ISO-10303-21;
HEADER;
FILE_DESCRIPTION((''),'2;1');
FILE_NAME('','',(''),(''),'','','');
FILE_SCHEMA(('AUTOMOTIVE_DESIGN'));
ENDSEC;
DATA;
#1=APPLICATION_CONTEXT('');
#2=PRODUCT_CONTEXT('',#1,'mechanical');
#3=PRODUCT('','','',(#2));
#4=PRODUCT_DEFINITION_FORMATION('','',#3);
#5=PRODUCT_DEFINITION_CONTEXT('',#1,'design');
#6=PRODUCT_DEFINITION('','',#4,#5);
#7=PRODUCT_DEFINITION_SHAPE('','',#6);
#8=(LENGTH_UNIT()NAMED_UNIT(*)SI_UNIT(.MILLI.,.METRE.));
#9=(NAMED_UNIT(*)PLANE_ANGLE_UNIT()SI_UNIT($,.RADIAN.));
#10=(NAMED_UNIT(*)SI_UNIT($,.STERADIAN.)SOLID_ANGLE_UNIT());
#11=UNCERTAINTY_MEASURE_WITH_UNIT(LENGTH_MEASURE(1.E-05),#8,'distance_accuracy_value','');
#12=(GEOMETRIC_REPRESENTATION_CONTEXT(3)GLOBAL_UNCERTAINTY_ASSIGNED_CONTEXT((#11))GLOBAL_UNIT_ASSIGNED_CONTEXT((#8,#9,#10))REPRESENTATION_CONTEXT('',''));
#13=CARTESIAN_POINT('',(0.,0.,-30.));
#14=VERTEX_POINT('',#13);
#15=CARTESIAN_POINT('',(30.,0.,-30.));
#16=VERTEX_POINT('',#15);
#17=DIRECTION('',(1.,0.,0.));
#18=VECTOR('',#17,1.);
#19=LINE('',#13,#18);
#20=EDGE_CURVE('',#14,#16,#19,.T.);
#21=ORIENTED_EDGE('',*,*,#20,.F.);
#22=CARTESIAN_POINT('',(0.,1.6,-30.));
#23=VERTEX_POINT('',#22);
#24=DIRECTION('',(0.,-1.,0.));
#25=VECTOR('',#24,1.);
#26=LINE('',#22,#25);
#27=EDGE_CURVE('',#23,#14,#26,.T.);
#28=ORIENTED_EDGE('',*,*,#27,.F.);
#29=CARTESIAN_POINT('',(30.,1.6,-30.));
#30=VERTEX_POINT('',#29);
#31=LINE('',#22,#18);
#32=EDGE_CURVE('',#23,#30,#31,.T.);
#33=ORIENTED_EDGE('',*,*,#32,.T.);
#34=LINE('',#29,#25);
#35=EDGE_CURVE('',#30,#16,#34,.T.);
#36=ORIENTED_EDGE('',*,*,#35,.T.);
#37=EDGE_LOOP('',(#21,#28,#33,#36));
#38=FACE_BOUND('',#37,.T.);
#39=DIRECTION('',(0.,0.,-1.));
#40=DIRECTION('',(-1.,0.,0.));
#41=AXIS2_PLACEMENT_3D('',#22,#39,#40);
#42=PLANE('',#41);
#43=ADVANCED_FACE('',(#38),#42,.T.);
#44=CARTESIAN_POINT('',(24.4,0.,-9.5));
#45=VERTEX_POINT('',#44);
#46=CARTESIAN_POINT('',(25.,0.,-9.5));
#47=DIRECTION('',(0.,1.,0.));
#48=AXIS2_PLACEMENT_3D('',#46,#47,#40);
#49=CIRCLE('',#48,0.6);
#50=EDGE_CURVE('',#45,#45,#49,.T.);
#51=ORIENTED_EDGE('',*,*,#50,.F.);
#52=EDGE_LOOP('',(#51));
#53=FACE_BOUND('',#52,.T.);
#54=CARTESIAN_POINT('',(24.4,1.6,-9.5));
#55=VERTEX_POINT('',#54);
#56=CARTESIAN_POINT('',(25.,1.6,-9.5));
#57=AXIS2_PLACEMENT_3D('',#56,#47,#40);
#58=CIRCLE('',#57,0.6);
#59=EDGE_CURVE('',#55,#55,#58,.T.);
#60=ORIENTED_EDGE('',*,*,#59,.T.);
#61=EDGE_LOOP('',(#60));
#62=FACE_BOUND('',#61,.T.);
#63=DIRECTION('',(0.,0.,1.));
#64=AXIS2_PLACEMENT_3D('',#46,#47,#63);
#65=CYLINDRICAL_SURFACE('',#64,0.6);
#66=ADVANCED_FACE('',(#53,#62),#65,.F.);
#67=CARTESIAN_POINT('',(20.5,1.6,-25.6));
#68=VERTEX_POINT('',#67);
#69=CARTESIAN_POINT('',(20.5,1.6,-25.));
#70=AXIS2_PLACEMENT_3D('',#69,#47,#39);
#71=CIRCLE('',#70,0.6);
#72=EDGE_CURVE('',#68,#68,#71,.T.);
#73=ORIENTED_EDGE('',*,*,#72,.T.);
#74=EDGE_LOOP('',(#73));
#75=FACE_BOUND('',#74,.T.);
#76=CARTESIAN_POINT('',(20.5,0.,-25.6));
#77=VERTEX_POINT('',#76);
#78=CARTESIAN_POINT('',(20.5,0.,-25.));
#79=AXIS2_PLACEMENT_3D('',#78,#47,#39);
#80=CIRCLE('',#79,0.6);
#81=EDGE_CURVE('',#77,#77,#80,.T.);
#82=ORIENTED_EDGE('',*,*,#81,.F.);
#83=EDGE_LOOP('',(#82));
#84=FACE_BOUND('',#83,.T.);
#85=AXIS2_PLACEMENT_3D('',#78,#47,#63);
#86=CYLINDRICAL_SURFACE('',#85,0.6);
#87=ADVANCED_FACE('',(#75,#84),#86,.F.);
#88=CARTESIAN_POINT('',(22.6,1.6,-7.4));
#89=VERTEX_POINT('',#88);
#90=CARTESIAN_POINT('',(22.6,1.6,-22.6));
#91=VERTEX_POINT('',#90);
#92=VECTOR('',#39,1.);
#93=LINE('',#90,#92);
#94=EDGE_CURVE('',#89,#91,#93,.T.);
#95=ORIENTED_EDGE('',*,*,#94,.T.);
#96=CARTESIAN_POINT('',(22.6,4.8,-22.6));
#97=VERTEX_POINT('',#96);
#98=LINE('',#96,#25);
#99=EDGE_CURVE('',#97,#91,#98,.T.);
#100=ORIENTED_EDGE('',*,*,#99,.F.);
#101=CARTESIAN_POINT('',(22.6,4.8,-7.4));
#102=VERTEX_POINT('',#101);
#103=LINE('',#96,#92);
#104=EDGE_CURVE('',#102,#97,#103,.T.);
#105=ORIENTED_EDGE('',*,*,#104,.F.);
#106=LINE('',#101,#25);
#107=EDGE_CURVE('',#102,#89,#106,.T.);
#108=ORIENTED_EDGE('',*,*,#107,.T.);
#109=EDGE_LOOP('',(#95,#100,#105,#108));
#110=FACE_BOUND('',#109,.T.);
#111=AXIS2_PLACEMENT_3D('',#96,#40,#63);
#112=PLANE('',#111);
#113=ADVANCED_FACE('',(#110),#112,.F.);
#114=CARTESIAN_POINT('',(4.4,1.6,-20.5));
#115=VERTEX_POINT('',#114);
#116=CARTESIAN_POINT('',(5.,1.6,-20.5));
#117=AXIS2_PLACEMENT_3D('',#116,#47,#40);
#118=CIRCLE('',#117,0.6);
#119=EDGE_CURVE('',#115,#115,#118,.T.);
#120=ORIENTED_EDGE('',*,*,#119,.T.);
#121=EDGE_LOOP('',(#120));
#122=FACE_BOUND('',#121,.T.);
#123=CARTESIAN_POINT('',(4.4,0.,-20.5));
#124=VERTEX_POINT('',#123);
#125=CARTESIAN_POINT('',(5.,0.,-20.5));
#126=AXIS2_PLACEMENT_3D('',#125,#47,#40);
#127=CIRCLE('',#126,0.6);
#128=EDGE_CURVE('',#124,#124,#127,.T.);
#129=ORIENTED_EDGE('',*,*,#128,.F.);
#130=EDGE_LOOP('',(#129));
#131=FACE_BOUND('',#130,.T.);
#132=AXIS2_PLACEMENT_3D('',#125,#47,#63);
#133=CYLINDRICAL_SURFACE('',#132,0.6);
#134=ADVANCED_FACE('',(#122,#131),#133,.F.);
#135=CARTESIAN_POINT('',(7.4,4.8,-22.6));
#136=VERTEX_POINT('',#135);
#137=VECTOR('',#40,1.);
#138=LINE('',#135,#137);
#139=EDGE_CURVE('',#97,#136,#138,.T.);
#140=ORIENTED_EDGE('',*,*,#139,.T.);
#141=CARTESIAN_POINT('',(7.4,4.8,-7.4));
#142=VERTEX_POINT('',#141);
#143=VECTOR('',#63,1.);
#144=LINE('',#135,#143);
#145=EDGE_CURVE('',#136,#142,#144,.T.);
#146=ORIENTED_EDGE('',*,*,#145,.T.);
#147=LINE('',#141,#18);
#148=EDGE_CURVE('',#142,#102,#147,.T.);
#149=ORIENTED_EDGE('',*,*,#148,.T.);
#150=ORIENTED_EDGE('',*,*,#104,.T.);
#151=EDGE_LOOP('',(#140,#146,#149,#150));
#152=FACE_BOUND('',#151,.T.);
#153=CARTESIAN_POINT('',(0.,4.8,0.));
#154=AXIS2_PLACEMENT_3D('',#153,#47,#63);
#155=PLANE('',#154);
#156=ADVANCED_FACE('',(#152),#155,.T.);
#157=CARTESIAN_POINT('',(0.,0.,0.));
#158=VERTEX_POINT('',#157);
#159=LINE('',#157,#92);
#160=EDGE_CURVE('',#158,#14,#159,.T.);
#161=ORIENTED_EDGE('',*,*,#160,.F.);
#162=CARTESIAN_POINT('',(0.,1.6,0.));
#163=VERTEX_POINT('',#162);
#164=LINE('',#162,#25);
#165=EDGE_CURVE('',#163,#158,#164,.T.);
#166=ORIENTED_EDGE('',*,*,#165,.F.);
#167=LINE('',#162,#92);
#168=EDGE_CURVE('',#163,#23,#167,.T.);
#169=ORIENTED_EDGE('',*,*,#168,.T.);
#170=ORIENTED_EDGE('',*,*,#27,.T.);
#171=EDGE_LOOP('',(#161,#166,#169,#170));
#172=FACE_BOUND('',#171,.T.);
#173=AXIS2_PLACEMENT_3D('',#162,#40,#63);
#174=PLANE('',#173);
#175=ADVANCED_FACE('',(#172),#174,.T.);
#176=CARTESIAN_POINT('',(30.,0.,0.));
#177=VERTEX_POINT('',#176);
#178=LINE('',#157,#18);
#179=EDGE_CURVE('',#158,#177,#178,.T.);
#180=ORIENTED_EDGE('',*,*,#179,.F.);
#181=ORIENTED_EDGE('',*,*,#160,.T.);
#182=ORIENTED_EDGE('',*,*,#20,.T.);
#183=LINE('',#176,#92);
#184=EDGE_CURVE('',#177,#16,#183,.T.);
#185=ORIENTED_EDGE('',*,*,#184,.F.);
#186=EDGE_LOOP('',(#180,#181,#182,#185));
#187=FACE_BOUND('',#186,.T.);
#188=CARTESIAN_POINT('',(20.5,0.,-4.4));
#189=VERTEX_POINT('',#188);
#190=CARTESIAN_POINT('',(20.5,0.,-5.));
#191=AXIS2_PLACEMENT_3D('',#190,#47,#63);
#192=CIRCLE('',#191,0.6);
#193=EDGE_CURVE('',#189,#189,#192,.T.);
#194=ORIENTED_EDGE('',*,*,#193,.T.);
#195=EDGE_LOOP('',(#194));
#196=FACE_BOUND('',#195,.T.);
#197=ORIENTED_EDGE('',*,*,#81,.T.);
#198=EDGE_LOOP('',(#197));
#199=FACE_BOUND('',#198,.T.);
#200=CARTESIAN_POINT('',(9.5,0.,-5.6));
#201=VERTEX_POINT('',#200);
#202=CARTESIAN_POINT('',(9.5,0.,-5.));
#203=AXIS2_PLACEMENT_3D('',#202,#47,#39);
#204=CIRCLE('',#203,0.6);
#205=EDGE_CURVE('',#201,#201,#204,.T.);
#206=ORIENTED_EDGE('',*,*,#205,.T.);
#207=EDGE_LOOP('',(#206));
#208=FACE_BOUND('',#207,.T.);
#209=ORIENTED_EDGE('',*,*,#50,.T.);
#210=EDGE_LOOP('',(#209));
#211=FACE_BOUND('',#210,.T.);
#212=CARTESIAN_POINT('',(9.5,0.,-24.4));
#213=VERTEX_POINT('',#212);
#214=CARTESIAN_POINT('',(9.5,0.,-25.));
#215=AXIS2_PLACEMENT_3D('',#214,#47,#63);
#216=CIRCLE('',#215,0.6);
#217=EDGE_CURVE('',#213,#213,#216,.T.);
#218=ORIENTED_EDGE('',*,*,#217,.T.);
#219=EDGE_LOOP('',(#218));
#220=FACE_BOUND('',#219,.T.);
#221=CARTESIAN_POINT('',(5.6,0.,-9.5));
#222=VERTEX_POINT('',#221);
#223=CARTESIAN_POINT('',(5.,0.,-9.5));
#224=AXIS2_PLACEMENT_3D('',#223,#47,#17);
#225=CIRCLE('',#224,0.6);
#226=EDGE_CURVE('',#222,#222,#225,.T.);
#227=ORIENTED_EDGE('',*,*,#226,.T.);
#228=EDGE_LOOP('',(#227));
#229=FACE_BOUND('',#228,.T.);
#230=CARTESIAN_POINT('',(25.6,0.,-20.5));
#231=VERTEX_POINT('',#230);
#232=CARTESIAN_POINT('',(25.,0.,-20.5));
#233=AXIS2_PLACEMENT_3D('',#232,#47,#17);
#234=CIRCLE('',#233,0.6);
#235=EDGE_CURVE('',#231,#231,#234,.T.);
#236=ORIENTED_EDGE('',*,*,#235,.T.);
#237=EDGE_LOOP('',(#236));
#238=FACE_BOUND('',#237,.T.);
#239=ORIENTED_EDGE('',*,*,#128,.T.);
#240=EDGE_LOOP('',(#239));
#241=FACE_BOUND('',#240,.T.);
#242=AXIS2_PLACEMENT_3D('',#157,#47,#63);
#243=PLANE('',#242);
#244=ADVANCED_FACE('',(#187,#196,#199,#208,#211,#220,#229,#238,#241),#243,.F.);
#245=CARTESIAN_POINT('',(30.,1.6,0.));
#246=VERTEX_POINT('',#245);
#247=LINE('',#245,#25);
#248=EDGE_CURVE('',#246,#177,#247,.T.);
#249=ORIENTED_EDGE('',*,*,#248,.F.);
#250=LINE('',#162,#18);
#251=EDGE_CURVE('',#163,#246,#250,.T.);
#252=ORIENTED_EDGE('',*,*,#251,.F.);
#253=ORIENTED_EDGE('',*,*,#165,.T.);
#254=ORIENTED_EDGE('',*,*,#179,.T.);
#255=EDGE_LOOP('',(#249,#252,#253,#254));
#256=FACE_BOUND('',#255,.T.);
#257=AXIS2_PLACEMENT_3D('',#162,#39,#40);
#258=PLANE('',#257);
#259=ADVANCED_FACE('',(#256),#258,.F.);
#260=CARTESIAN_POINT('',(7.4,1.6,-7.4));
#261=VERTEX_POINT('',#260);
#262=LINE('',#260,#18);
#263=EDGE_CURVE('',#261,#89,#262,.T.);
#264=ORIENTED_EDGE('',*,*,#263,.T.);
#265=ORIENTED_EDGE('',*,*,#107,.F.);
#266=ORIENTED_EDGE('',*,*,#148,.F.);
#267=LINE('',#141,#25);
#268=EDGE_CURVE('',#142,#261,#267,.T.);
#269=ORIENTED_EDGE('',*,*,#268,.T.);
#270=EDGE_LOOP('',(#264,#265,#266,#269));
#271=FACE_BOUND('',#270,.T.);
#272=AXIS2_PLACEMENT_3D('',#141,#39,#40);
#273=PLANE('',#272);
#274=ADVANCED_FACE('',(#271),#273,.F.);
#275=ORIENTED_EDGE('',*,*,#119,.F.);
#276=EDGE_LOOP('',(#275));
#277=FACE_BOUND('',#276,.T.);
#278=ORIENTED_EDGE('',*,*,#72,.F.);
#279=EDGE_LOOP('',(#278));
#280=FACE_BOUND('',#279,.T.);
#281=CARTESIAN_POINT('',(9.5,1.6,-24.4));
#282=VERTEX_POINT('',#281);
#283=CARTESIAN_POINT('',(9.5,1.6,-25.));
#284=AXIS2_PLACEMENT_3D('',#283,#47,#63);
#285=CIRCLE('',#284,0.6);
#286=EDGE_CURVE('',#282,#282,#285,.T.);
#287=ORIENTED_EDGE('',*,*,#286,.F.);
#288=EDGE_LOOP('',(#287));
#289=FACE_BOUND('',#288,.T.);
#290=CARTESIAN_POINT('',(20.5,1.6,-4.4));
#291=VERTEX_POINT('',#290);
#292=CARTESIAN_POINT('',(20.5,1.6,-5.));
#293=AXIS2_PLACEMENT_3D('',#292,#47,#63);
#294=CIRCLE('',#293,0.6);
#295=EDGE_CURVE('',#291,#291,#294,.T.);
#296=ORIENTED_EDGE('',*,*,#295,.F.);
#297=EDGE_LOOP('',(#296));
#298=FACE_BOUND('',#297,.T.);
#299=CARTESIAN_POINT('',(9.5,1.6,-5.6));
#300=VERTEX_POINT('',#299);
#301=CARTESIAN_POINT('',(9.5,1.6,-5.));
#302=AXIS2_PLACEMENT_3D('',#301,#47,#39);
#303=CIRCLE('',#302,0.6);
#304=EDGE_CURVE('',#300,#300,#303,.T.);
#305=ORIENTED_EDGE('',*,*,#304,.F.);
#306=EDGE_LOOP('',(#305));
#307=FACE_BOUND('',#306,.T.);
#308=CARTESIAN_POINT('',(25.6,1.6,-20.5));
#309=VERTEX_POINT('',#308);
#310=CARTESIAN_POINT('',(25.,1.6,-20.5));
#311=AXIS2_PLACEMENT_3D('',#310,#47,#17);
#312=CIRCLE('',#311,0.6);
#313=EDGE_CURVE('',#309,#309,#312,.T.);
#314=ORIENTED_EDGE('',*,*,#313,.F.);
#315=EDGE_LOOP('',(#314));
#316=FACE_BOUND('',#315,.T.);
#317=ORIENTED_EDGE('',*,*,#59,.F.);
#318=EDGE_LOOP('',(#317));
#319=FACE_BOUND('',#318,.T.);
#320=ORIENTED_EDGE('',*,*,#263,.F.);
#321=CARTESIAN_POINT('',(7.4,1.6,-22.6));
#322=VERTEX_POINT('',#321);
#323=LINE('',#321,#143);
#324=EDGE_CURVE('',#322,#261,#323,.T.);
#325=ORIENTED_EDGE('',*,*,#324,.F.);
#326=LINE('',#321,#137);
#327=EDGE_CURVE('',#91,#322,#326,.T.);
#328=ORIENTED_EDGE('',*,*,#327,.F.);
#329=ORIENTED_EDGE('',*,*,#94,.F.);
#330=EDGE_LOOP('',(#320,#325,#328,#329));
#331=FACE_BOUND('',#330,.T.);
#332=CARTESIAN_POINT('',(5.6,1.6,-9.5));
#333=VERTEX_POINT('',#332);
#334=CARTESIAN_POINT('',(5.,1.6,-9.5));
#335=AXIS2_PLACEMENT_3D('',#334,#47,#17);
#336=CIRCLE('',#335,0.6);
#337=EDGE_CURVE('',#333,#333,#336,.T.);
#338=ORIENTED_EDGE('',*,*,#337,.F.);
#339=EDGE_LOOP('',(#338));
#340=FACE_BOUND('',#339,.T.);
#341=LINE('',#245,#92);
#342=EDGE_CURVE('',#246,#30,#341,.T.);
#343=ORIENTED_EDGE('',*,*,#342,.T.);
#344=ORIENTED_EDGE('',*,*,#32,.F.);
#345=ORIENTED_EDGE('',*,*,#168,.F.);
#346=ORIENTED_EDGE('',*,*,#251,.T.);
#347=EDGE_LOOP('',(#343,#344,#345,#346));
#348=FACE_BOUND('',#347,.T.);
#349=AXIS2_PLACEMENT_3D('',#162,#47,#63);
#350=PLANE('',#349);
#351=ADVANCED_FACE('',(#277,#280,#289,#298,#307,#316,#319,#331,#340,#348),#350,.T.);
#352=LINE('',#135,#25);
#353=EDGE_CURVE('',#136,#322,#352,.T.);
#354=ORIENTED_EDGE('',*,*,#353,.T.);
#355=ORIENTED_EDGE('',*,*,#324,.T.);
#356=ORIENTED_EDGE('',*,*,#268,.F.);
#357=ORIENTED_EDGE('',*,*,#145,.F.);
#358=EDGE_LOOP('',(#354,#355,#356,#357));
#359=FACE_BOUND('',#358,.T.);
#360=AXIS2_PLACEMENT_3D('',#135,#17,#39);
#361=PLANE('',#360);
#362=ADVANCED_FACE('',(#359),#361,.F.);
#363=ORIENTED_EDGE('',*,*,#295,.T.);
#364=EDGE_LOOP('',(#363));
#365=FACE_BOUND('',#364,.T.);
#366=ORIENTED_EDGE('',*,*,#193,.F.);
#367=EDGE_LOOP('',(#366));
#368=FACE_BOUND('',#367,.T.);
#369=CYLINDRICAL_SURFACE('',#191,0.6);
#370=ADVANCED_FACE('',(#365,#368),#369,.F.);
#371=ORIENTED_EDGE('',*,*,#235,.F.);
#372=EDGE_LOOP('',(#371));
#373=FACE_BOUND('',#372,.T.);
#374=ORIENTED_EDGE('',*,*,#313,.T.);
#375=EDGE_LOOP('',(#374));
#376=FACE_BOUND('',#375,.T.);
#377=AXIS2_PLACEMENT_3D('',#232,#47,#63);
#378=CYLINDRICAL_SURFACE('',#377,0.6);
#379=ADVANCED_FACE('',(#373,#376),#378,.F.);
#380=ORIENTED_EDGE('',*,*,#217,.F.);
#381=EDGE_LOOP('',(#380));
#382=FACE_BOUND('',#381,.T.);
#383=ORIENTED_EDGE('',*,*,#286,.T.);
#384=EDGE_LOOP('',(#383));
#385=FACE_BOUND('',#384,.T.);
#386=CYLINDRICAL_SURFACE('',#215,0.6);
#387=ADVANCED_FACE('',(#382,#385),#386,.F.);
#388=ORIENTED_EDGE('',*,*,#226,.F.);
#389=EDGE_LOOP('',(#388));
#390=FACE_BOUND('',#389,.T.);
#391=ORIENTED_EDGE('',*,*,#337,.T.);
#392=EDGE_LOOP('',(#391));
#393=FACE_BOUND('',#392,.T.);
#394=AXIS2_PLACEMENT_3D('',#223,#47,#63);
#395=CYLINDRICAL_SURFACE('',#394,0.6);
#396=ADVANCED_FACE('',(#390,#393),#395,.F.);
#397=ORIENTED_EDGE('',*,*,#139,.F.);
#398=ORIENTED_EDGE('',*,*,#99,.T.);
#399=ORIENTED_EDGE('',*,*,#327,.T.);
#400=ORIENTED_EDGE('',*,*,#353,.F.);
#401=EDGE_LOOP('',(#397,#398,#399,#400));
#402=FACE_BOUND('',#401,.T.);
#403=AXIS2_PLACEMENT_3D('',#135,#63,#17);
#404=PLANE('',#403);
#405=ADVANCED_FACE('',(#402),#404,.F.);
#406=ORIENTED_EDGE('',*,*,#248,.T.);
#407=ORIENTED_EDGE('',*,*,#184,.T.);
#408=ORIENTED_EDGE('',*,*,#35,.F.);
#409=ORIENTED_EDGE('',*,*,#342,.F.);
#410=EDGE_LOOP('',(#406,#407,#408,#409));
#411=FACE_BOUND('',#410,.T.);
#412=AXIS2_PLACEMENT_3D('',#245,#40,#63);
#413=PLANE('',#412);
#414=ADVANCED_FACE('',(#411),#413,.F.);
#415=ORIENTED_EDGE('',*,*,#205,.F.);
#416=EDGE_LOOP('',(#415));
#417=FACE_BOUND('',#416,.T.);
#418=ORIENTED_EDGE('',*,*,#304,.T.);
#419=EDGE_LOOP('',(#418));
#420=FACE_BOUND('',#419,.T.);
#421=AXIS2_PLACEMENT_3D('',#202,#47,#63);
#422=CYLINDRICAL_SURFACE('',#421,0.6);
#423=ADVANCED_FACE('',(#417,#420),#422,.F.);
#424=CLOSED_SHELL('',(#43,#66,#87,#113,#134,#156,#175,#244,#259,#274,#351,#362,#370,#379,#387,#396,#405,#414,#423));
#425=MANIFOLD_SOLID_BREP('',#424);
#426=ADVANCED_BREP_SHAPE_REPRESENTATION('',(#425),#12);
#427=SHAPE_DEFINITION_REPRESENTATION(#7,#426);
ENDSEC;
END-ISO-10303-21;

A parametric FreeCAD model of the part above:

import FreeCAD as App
import Part
import Sketcher
from FreeCAD import Vector
Q = App.Units.Quantity

doc = App.newDocument("Part")
body = doc.addObject("PartDesign::Body", "Body")

# Sketch on XZ plane
sketch1 = doc.addObject("Sketcher::SketchObject", "Sketch")
body.addObject(sketch1)
sketch1.AttachmentSupport = (doc.XZ_Plane, [""])
sketch1.MapMode = "FlatFace"
sketch1.addGeometry([
    Part.LineSegment(Vector(0, -30, 0), Vector(0, 0, 0)),
    Part.LineSegment(Vector(0, 0, 0), Vector(30, 0, 0)),
    Part.LineSegment(Vector(30, 0, 0), Vector(30, -30, 0)),
    Part.LineSegment(Vector(30, -30, 0), Vector(0, -30, 0)),
], False)
sketch1.addConstraint([
    Sketcher.Constraint("Coincident", 0, 2, 1, 1),
    Sketcher.Constraint("Coincident", 1, 2, 2, 1),
    Sketcher.Constraint("Coincident", 2, 2, 3, 1),
    Sketcher.Constraint("Coincident", 3, 2, 0, 1),
    Sketcher.Constraint("Vertical", 0),
    Sketcher.Constraint("Horizontal", 1),
    Sketcher.Constraint("Vertical", 2),
    Sketcher.Constraint("Horizontal", 3),
    Sketcher.Constraint("Coincident", 0, 2, -1, 1),
    Sketcher.Constraint("Equal", 3, 0),
    Sketcher.Constraint("DistanceX", 1, 1, 1, 2, Q("30 mm")),
])
pad1 = doc.addObject("PartDesign::Pad", "Pad")
body.addObject(pad1)
pad1.Profile = sketch1
pad1.Length = 1.6
pad1.Reversed = True

# Sketch on XZ plane
sketch2 = doc.addObject("Sketcher::SketchObject", "Sketch001")
body.addObject(sketch2)
sketch2.AttachmentSupport = (doc.XZ_Plane, [""])
sketch2.MapMode = "FlatFace"
sketch2.AttachmentOffset = App.Placement(Vector(0, 0, -1.6), App.Rotation())
sketch2.addGeometry([
    Part.Circle(Vector(20.5, -5, 0), Vector(0, 0, 1), 0.6),
    Part.Circle(Vector(9.5, -5, 0), Vector(0, 0, 1), 0.6),
    Part.Circle(Vector(20.5, -25, 0), Vector(0, 0, 1), 0.6),
    Part.Circle(Vector(9.5, -25, 0), Vector(0, 0, 1), 0.6),
], False)
sketch2.addConstraint([
    Sketcher.Constraint("Equal", 0, 1),
    Sketcher.Constraint("Equal", 1, 2),
    Sketcher.Constraint("Equal", 2, 3),
    Sketcher.Constraint("Horizontal", 0, 3, 1, 3),
    Sketcher.Constraint("Horizontal", 2, 3, 3, 3),
    Sketcher.Constraint("Vertical", 0, 3, 2, 3),
    Sketcher.Constraint("Vertical", 1, 3, 3, 3),
    Sketcher.Constraint("Diameter", 0, Q("1.2 mm")),
    Sketcher.Constraint("DistanceY", 0, 3, -1, 1, Q("5 mm")),
    Sketcher.Constraint("DistanceY", 2, 3, -1, 1, Q("25 mm")),
    Sketcher.Constraint("DistanceX", 1, 3, 0, 3, Q("11 mm")),
    Sketcher.Constraint("DistanceX", -1, 1, 0, 3, Q("20.5 mm")),
])
pocket1 = doc.addObject("PartDesign::Pocket", "Pocket")
body.addObject(pocket1)
pocket1.Profile = sketch2
pocket1.Length = 1.6
pocket1.Reversed = True
doc.recompute()

datumline = doc.addObject("PartDesign::Line", "DatumLine")
body.addObject(datumline)
datumline.Placement = App.Placement(Vector(15, 0, -15), App.Rotation(Vector(0, 0, 1), Vector(0, 1, 0)))
polarpattern = doc.addObject("PartDesign::PolarPattern", "PolarPattern")
body.addObject(polarpattern)
polarpattern.Originals = [pocket1]
polarpattern.Axis = (datumline, [""])
polarpattern.Angle = 90
polarpattern.Occurrences = 2
body.Tip = polarpattern

# Sketch on XZ plane
sketch3 = doc.addObject("Sketcher::SketchObject", "Sketch002")
body.addObject(sketch3)
sketch3.AttachmentSupport = (doc.XZ_Plane, [""])
sketch3.MapMode = "FlatFace"
sketch3.AttachmentOffset = App.Placement(Vector(0, 0, -1.6), App.Rotation())
sketch3.addGeometry([
    Part.LineSegment(Vector(7, -23, 0), Vector(7, -7, 0)),
    Part.LineSegment(Vector(7, -7, 0), Vector(23, -7, 0)),
    Part.LineSegment(Vector(23, -7, 0), Vector(23, -23, 0)),
    Part.LineSegment(Vector(23, -23, 0), Vector(7, -23, 0)),
], False)
sketch3.addConstraint([
    Sketcher.Constraint("Coincident", 0, 2, 1, 1),
    Sketcher.Constraint("Coincident", 1, 2, 2, 1),
    Sketcher.Constraint("Coincident", 2, 2, 3, 1),
    Sketcher.Constraint("Coincident", 3, 2, 0, 1),
    Sketcher.Constraint("Vertical", 0),
    Sketcher.Constraint("Horizontal", 1),
    Sketcher.Constraint("Vertical", 2),
    Sketcher.Constraint("Horizontal", 3),
    Sketcher.Constraint("Equal", 3, 0),
    Sketcher.Constraint("DistanceX", 1, 1, 1, 2, Q("15.2 mm")),
    Sketcher.Constraint("DistanceX", -1, 1, 0, 2, Q("7.4 mm")),
    Sketcher.Constraint("DistanceY", 0, 2, -1, 1, Q("7.4 mm")),
])
pad2 = doc.addObject("PartDesign::Pad", "Pad001")
body.addObject(pad2)
pad2.Profile = sketch3
pad2.Length = 3.2
pad2.Reversed = True

doc.recompute()
